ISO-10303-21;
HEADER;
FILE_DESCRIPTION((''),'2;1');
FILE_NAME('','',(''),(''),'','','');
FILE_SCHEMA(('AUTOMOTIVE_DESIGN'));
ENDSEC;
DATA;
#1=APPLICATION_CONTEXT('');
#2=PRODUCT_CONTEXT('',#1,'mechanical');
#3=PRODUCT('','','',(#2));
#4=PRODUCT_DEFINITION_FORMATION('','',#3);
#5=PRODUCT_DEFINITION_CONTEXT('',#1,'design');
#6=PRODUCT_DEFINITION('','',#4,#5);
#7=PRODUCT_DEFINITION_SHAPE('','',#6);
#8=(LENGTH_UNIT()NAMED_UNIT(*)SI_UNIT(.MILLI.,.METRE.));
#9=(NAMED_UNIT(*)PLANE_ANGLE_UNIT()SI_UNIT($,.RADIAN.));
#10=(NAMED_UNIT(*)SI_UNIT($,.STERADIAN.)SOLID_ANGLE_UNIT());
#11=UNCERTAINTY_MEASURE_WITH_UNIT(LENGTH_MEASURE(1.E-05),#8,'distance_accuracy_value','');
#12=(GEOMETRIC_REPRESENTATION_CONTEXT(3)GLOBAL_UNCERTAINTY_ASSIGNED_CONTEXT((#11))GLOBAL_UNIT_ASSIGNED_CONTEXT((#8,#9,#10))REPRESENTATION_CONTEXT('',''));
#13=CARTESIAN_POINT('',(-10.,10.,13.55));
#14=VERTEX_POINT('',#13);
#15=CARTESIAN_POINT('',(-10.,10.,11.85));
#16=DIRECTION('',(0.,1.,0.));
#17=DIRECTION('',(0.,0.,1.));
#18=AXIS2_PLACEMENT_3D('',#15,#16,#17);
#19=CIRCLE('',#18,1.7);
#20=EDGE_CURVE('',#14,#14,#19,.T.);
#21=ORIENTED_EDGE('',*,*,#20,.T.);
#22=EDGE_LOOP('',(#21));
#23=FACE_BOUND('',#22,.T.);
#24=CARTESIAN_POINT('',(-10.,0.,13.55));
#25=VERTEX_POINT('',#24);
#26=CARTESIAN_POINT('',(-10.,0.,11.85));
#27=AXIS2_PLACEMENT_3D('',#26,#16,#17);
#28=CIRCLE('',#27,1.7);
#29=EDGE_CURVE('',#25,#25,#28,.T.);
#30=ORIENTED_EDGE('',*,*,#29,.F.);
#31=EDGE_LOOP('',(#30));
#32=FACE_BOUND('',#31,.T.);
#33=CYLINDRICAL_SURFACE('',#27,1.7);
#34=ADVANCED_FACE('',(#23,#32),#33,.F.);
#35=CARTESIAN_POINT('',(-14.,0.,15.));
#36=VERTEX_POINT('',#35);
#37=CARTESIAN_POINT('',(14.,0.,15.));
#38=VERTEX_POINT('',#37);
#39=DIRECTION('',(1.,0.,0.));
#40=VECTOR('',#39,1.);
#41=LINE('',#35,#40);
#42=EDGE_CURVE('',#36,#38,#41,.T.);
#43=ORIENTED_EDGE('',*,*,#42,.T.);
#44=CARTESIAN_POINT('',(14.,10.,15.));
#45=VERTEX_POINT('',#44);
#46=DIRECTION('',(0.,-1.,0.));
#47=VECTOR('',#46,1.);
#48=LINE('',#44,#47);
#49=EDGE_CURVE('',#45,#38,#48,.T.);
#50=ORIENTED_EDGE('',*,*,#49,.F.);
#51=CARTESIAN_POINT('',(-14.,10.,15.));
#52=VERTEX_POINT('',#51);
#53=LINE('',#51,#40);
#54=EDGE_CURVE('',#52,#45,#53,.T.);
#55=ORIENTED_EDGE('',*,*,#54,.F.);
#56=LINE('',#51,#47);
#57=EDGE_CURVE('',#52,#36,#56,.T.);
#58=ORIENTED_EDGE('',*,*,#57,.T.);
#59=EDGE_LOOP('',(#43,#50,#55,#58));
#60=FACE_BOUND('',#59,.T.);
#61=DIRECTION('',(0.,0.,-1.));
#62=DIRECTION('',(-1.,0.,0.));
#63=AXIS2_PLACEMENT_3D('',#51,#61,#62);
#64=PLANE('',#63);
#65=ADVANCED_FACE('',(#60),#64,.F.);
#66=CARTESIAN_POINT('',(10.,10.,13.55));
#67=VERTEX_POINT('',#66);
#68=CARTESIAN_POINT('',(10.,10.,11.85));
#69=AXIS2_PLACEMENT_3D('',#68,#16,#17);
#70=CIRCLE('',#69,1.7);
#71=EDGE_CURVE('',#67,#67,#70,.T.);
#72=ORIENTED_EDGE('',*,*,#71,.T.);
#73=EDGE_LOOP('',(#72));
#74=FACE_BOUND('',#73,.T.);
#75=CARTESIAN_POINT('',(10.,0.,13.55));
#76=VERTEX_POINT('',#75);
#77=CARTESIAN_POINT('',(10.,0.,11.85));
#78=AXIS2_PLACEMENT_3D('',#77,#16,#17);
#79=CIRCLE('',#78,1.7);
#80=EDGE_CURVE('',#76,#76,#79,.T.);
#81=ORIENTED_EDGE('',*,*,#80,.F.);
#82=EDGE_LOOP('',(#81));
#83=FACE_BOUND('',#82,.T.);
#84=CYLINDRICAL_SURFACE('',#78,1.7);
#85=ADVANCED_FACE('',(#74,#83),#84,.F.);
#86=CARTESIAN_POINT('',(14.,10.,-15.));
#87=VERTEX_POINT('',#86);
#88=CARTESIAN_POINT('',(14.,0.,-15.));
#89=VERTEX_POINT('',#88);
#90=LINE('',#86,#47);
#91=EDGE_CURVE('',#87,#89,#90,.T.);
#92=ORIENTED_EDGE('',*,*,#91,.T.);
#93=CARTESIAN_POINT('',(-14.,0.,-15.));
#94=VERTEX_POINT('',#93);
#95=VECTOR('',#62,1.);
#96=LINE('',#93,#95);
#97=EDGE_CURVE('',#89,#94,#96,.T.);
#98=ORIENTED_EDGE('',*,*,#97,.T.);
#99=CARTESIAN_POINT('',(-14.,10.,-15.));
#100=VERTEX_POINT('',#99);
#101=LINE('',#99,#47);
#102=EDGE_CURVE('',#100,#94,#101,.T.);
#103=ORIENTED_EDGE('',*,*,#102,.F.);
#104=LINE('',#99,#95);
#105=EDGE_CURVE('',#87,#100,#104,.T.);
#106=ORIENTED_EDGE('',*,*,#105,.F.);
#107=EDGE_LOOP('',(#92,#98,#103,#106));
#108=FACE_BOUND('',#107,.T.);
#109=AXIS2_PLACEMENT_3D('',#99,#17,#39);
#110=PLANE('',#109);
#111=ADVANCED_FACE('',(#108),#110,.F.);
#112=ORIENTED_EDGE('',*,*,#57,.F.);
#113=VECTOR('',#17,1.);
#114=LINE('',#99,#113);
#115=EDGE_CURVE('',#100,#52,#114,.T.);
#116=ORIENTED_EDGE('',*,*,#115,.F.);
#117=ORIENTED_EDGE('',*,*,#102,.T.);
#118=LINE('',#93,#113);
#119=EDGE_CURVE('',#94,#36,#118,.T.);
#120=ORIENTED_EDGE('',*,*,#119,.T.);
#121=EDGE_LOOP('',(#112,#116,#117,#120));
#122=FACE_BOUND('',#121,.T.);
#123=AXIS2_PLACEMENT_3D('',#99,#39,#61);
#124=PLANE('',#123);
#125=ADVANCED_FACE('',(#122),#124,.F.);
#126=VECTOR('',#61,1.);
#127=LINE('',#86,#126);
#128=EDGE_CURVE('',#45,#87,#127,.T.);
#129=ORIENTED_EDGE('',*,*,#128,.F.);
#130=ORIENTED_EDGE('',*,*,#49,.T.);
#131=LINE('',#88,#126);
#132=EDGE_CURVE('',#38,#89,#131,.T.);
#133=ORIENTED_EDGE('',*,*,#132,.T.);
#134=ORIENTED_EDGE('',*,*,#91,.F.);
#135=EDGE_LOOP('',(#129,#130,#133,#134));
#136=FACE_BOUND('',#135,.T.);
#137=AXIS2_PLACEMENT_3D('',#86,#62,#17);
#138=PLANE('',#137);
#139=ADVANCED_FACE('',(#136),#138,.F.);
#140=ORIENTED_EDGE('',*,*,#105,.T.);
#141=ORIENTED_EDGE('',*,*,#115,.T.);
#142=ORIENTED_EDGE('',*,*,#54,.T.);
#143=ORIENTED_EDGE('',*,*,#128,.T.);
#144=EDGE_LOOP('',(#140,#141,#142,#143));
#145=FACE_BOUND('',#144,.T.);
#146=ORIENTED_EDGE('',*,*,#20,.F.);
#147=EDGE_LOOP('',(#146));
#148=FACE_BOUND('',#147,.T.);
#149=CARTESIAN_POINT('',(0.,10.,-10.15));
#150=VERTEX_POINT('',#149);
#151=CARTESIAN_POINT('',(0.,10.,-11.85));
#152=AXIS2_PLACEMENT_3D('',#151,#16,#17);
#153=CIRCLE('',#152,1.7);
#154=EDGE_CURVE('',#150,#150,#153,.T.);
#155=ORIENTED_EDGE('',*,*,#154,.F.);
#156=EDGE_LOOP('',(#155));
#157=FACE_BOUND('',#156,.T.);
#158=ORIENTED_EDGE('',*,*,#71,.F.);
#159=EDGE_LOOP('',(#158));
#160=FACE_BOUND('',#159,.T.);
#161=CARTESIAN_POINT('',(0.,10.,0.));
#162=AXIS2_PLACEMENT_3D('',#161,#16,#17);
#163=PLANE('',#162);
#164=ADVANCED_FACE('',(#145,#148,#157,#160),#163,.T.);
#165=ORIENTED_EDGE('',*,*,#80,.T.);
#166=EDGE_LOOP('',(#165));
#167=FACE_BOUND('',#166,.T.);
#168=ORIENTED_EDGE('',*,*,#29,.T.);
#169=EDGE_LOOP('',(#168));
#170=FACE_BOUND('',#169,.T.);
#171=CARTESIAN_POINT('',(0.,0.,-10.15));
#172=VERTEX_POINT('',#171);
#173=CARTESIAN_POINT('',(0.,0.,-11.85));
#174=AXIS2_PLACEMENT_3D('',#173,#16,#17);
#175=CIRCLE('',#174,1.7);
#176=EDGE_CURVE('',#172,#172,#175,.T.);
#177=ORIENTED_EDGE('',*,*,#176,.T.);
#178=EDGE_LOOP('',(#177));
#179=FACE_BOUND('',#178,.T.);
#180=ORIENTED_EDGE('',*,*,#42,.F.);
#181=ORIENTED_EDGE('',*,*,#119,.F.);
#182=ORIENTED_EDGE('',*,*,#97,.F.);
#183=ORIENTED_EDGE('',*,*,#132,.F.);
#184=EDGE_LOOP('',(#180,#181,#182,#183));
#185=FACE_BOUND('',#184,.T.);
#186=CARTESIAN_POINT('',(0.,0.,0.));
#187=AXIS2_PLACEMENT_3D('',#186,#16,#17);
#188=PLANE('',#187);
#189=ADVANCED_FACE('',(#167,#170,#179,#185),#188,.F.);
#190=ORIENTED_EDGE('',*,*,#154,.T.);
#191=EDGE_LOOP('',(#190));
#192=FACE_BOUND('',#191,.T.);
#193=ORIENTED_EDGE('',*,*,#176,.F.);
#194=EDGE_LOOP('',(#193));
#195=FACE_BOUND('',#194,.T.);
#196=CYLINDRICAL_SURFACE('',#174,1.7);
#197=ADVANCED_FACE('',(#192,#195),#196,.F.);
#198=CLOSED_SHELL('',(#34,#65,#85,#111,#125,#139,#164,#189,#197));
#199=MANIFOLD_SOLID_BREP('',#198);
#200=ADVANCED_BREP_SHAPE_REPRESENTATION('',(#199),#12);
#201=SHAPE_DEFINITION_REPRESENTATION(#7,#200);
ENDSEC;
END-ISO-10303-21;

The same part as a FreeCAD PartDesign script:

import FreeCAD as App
import Part
import Sketcher
from FreeCAD import Vector


def add_polygon(sketch, points):
    """Adds a closed chain of lines whose ends are joined by coincident constraints."""
    first, n = sketch.GeometryCount, len(points)
    for a, b in zip(points, points[1:] + points[:1]):
        sketch.addGeometry(Part.LineSegment(App.Vector(*a, 0), App.Vector(*b, 0)), False)
    for i in range(n):
        sketch.addConstraint(Sketcher.Constraint("Coincident", first + i, 2, first + (i + 1) % n, 1))

doc = App.newDocument("Part")
body = doc.addObject("PartDesign::Body", "Body")

# Sketch on XZ plane
sketch1 = body.newObject("Sketcher::SketchObject", "Sketch")
sketch1.AttachmentSupport = (doc.getObject("XZ_Plane"), [""])
sketch1.MapMode = "FlatFace"
add_polygon(sketch1, [(-14, -15), (-14, 15), (14, 15), (14, -15)])  # lines 0-3
sketch1.addConstraint(Sketcher.Constraint("Vertical", 0))
sketch1.addConstraint(Sketcher.Constraint("Horizontal", 1))
sketch1.addConstraint(Sketcher.Constraint("Vertical", 2))
sketch1.addConstraint(Sketcher.Constraint("Horizontal", 3))
sketch1.addConstraint(Sketcher.Constraint("Symmetric", 0, 2, 2, 2, -1, 1))
sketch1.addConstraint(Sketcher.Constraint("DistanceX", 1, 1, 1, 2, 28.0))
sketch1.addConstraint(Sketcher.Constraint("DistanceY", 0, 1, 0, 2, 30.0))
pad1 = body.newObject("PartDesign::Pad", "Pad")
pad1.Profile = sketch1
pad1.Length = 10
pad1.Reversed = True

# Sketch on XZ plane
sketch2 = body.newObject("Sketcher::SketchObject", "Sketch001")
sketch2.AttachmentSupport = (doc.getObject("XZ_Plane"), [""])
sketch2.MapMode = "FlatFace"
sketch2.AttachmentOffset = App.Placement(Vector(0, 0, -10), App.Rotation())
sketch2.addGeometry(Part.Circle(Vector(0, -11.8, 0), Vector(0, 0, 1), 1.7), False)
sketch2.addGeometry(Part.Circle(Vector(-10, 11.8, 0), Vector(0, 0, 1), 1.7), False)
sketch2.addGeometry(Part.Circle(Vector(10, 11.8, 0), Vector(0, 0, 1), 1.7), False)
sketch2.addConstraint(Sketcher.Constraint("Equal", 0, 1))
sketch2.addConstraint(Sketcher.Constraint("Equal", 1, 2))
sketch2.addConstraint(Sketcher.Constraint("Symmetric", 1, 3, 2, 3, -2))
sketch2.addConstraint(Sketcher.Constraint("PointOnObject", 0, 3, -2))
sketch2.addConstraint(Sketcher.Constraint("Diameter", 0, 3.4))
sketch2.addConstraint(Sketcher.Constraint("DistanceX", 1, 3, -1, 1, 10.0))
sketch2.addConstraint(Sketcher.Constraint("DistanceY", 0, 3, 1, 3, 23.7))
sketch2.addConstraint(Sketcher.Constraint("DistanceY", 0, 3, -1, 1, 11.85))
pocket1 = body.newObject("PartDesign::Pocket", "Pocket")
pocket1.Profile = sketch2
pocket1.Type = "ThroughAll"
pocket1.Reversed = True

doc.recompute()
